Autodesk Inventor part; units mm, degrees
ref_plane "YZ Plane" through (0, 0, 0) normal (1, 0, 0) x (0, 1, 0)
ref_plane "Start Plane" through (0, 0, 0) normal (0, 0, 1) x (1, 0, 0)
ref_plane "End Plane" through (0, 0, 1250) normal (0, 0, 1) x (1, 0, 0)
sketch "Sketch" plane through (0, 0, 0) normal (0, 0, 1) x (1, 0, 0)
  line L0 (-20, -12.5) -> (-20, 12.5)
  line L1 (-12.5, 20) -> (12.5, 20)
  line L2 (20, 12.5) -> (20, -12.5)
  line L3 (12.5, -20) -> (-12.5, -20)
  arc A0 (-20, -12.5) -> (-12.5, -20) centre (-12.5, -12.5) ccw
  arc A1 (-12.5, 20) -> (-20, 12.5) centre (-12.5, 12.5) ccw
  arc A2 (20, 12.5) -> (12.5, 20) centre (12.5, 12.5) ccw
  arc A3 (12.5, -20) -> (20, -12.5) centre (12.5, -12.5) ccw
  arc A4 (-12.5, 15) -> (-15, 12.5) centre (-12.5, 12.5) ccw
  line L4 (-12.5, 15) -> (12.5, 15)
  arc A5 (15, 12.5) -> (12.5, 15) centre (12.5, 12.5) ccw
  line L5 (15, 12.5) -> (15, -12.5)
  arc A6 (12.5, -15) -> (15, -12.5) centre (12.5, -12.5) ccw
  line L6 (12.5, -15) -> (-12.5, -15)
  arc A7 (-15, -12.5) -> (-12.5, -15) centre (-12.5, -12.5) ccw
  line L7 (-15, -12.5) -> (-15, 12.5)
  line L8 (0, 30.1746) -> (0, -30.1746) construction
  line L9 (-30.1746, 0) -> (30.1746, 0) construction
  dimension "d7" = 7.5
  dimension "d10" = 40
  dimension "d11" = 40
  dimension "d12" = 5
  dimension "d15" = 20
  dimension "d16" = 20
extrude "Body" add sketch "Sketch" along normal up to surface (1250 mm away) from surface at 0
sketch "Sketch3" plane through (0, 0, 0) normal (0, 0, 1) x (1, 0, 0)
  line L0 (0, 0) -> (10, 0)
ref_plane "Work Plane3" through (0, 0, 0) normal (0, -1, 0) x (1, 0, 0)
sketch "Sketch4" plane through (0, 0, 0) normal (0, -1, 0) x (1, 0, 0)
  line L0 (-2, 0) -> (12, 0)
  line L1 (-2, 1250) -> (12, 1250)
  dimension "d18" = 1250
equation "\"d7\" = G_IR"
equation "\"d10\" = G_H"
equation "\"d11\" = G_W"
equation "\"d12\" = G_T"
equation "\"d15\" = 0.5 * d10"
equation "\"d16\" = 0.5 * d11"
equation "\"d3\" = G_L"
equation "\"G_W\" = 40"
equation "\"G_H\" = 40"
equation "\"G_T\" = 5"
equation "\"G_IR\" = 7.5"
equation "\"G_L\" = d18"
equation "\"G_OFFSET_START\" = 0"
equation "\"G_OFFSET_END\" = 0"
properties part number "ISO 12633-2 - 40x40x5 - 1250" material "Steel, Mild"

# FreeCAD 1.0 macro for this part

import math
import FreeCAD as App
import Part
import Sketcher

V = App.Vector

doc = App.newDocument("Part")
body = doc.addObject("PartDesign::Body", "Body")

sketch1 = doc.addObject("Sketcher::SketchObject", "Sketch")
body.addObject(sketch1)
sketch1.AttachmentSupport = (doc.XY_Plane, [""])
sketch1.MapMode = "FlatFace"
sketch1.addGeometry(Part.LineSegment(V(-20, 12.5, 0), V(-20, -12.5, 0)), False)
sketch1.addGeometry(Part.ArcOfCircle(Part.Circle(V(-12.5, -12.5, 0), V(0, 0, 1), 7.5), math.radians(180), math.radians(270)), False)
sketch1.addGeometry(Part.LineSegment(V(-12.5, -20, 0), V(12.5, -20, 0)), False)
sketch1.addGeometry(Part.ArcOfCircle(Part.Circle(V(12.5, -12.5, 0), V(0, 0, 1), 7.5), math.radians(-90), math.radians(0)), False)
sketch1.addGeometry(Part.LineSegment(V(20, -12.5, 0), V(20, 12.5, 0)), False)
sketch1.addGeometry(Part.ArcOfCircle(Part.Circle(V(12.5, 12.5, 0), V(0, 0, 1), 7.5), math.radians(0), math.radians(90)), False)
sketch1.addGeometry(Part.LineSegment(V(12.5, 20, 0), V(-12.5, 20, 0)), False)
sketch1.addGeometry(Part.ArcOfCircle(Part.Circle(V(-12.5, 12.5, 0), V(0, 0, 1), 7.5), math.radians(90), math.radians(180)), False)
sketch1.addGeometry(Part.ArcOfCircle(Part.Circle(V(-12.5, 12.5, 0), V(0, 0, 1), 2.5), math.radians(90), math.radians(180)), False)
sketch1.addGeometry(Part.LineSegment(V(-12.5, 15, 0), V(12.5, 15, 0)), False)
sketch1.addGeometry(Part.ArcOfCircle(Part.Circle(V(12.5, 12.5, 0), V(0, 0, 1), 2.5), math.radians(0), math.radians(90)), False)
sketch1.addGeometry(Part.LineSegment(V(15, 12.5, 0), V(15, -12.5, 0)), False)
sketch1.addGeometry(Part.ArcOfCircle(Part.Circle(V(12.5, -12.5, 0), V(0, 0, 1), 2.5), math.radians(-90), math.radians(0)), False)
sketch1.addGeometry(Part.LineSegment(V(12.5, -15, 0), V(-12.5, -15, 0)), False)
sketch1.addGeometry(Part.ArcOfCircle(Part.Circle(V(-12.5, -12.5, 0), V(0, 0, 1), 2.5), math.radians(180), math.radians(270)), False)
sketch1.addGeometry(Part.LineSegment(V(-15, -12.5, 0), V(-15, 12.5, 0)), False)
sketch1.addConstraint(Sketcher.Constraint("Tangent", 0, 2, 1, 1))
sketch1.addConstraint(Sketcher.Constraint("Tangent", 1, 2, 2, 1))
sketch1.addConstraint(Sketcher.Constraint("Tangent", 2, 2, 3, 1))
sketch1.addConstraint(Sketcher.Constraint("Tangent", 3, 2, 4, 1))
sketch1.addConstraint(Sketcher.Constraint("Tangent", 4, 2, 5, 1))
sketch1.addConstraint(Sketcher.Constraint("Tangent", 5, 2, 6, 1))
sketch1.addConstraint(Sketcher.Constraint("Tangent", 6, 2, 7, 1))
sketch1.addConstraint(Sketcher.Constraint("Tangent", 7, 2, 0, 1))
sketch1.addConstraint(Sketcher.Constraint("Tangent", 8, 1, 9, 1))
sketch1.addConstraint(Sketcher.Constraint("Tangent", 9, 2, 10, 2))
sketch1.addConstraint(Sketcher.Constraint("Tangent", 10, 1, 11, 1))
sketch1.addConstraint(Sketcher.Constraint("Tangent", 11, 2, 12, 2))
sketch1.addConstraint(Sketcher.Constraint("Tangent", 12, 1, 13, 1))
sketch1.addConstraint(Sketcher.Constraint("Tangent", 13, 2, 14, 2))
sketch1.addConstraint(Sketcher.Constraint("Tangent", 14, 1, 15, 1))
sketch1.addConstraint(Sketcher.Constraint("Tangent", 15, 2, 8, 2))
sketch1.addConstraint(Sketcher.Constraint("Vertical", 0))
sketch1.addConstraint(Sketcher.Constraint("Horizontal", 2))
sketch1.addConstraint(Sketcher.Constraint("Vertical", 4))
sketch1.addConstraint(Sketcher.Constraint("Horizontal", 6))
sketch1.addConstraint(Sketcher.Constraint("Horizontal", 9))
sketch1.addConstraint(Sketcher.Constraint("Vertical", 11))
sketch1.addConstraint(Sketcher.Constraint("Horizontal", 13))
sketch1.addConstraint(Sketcher.Constraint("Vertical", 15))
sketch1.addConstraint(Sketcher.Constraint("Coincident", 8, 3, 7, 3))
sketch1.addConstraint(Sketcher.Constraint("Coincident", 10, 3, 5, 3))
sketch1.addConstraint(Sketcher.Constraint("Coincident", 12, 3, 3, 3))
sketch1.addConstraint(Sketcher.Constraint("Equal", 1, 3))
sketch1.addConstraint(Sketcher.Constraint("Equal", 3, 5))
sketch1.addConstraint(Sketcher.Constraint("Equal", 5, 7))
sketch1.addConstraint(Sketcher.Constraint("Equal", 12, 14))
sketch1.addConstraint(Sketcher.Constraint("Symmetric", 1, 3, 5, 3, -1, 1))
sketch1.addConstraint(Sketcher.Constraint("Equal", 13, 0))
sketch1.addConstraint(Sketcher.Constraint("Radius", 1, 7.5))
sketch1.addConstraint(Sketcher.Constraint("Radius", 8, 2.5))
sketch1.addConstraint(Sketcher.Constraint("DistanceX", 0, 2, -1, 1, 20.0))
pad1 = doc.addObject("PartDesign::Pad", "Pad")
body.addObject(pad1)
pad1.Profile = sketch1
pad1.Length = 1250

doc.recompute()
